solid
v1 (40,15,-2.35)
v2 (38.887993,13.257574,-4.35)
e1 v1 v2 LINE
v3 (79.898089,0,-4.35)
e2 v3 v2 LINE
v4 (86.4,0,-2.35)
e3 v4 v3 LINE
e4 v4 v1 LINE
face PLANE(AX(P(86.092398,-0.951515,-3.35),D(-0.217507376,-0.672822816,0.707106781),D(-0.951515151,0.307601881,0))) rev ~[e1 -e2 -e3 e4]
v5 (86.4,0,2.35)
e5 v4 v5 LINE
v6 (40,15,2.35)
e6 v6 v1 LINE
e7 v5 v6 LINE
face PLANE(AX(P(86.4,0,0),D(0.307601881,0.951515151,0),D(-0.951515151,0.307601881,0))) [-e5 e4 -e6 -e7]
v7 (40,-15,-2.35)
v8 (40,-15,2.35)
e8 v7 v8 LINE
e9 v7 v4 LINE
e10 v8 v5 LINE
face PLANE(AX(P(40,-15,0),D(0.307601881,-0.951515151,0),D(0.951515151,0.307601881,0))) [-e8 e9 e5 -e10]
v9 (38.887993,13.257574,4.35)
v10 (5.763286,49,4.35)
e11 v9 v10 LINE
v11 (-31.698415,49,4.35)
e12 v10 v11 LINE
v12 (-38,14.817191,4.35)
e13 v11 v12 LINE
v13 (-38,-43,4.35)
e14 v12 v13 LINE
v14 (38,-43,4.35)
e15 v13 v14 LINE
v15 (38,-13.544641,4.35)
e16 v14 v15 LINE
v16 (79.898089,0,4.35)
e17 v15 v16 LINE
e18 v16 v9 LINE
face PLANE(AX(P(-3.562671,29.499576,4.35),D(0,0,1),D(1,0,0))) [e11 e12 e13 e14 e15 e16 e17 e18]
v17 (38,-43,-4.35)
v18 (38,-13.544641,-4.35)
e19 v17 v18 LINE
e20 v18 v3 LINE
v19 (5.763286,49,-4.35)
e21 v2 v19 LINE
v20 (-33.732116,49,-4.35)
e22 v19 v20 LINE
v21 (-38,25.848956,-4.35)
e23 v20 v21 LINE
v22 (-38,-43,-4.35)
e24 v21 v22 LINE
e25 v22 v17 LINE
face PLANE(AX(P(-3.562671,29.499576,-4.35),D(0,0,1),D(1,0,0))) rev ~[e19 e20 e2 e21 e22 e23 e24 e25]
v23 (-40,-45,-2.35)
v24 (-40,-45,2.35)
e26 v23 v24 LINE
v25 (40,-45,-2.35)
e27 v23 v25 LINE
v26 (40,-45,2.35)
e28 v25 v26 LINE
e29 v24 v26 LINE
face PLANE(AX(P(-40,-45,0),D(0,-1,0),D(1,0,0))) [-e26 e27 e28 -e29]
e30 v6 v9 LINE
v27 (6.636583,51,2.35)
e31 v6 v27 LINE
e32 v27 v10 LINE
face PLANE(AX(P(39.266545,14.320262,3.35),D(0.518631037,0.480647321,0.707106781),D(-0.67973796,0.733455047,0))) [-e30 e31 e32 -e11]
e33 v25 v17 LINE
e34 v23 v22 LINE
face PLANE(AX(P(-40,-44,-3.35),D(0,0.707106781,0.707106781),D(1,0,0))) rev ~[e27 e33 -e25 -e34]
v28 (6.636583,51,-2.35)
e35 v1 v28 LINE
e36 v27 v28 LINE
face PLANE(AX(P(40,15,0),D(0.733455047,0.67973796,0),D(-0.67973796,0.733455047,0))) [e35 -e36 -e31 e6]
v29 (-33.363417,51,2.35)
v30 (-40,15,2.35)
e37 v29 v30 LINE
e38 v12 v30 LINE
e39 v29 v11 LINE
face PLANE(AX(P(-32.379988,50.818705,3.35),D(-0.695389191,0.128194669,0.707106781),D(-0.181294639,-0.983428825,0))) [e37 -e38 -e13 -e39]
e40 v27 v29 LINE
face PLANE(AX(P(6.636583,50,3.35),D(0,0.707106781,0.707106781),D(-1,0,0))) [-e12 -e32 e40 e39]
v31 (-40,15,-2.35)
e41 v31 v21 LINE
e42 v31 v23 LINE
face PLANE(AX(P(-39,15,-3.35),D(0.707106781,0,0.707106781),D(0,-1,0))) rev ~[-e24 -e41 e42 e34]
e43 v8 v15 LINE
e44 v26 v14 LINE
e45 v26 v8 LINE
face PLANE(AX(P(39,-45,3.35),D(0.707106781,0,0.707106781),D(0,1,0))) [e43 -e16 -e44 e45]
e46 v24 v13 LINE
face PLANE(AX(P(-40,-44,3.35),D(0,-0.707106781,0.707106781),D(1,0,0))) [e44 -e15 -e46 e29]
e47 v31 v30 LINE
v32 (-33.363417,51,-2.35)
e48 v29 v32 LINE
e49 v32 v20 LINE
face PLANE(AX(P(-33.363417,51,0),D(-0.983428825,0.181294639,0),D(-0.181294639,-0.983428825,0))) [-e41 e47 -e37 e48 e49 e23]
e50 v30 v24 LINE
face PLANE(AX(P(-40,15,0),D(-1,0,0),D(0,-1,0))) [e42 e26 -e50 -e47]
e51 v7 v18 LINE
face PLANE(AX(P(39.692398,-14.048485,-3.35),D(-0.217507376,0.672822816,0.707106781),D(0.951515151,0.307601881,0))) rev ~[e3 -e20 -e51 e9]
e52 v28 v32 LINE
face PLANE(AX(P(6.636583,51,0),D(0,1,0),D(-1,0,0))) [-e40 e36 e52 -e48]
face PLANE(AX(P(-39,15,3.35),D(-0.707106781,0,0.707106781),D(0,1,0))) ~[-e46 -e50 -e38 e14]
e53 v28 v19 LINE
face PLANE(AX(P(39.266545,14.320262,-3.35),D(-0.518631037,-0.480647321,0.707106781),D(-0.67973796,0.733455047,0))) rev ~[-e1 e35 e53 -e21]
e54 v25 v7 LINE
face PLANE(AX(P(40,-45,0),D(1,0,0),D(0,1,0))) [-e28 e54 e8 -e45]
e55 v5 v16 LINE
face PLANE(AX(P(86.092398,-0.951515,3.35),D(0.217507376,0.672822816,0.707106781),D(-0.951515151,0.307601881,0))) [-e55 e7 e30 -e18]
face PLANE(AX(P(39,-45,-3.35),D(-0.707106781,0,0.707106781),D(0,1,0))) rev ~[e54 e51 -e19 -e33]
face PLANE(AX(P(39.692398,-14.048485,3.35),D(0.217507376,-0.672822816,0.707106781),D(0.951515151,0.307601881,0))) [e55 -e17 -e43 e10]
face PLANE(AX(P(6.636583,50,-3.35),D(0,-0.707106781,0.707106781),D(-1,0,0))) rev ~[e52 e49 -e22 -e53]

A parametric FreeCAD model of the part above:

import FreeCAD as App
import Part
import Sketcher
from FreeCAD import Vector


def edges_at(feature, points):
    """Names of the edges that pass closest to the given points."""
    edges = feature.Shape.Edges
    near = lambda p: min(range(len(edges)), key=lambda i: edges[i].distToShape(Part.Vertex(*p))[0])
    return sorted({f"Edge{near(p) + 1}" for p in points})

doc = App.newDocument("Part")
body = doc.addObject("PartDesign::Body", "Body")

sketch1 = body.newObject("Sketcher::SketchObject", "Sketch")
sketch1.AttachmentSupport = (doc.getObject("XY_Plane"), [""])
sketch1.MapMode = "FlatFace"
sketch1.addGeometry(Part.LineSegment(Vector(-33, 51, 0), Vector(-40, 15, 0)), False)
sketch1.addGeometry(Part.LineSegment(Vector(-40, 15, 0), Vector(-40, -45, 0)), False)
sketch1.addGeometry(Part.LineSegment(Vector(-40, -45, 0), Vector(40, -45, 0)), False)
sketch1.addGeometry(Part.LineSegment(Vector(40, -45, 0), Vector(40, -15, 0)), False)
sketch1.addGeometry(Part.LineSegment(Vector(40, -15, 0), Vector(86, 0, 0)), False)
sketch1.addGeometry(Part.LineSegment(Vector(86, 0, 0), Vector(40, 15, 0)), False)
sketch1.addGeometry(Part.LineSegment(Vector(40, 15, 0), Vector(7, 51, 0)), False)
sketch1.addGeometry(Part.LineSegment(Vector(7, 51, 0), Vector(-33, 51, 0)), False)
sketch1.addConstraint(Sketcher.Constraint("Coincident", 0, 2, 1, 1))
sketch1.addConstraint(Sketcher.Constraint("Coincident", 1, 2, 2, 1))
sketch1.addConstraint(Sketcher.Constraint("Coincident", 2, 2, 3, 1))
sketch1.addConstraint(Sketcher.Constraint("Coincident", 3, 2, 4, 1))
sketch1.addConstraint(Sketcher.Constraint("Coincident", 4, 2, 5, 1))
sketch1.addConstraint(Sketcher.Constraint("Coincident", 5, 2, 6, 1))
sketch1.addConstraint(Sketcher.Constraint("Coincident", 6, 2, 7, 1))
sketch1.addConstraint(Sketcher.Constraint("Coincident", 7, 2, 0, 1))
sketch1.addConstraint(Sketcher.Constraint("Vertical", 1))
sketch1.addConstraint(Sketcher.Constraint("Horizontal", 2))
sketch1.addConstraint(Sketcher.Constraint("Vertical", 3))
sketch1.addConstraint(Sketcher.Constraint("Horizontal", 7))
sketch1.addConstraint(Sketcher.Constraint("Symmetric", 0, 2, 3, 2, -1, 1))
sketch1.addConstraint(Sketcher.Constraint("Symmetric", 0, 2, 5, 2, -2))
sketch1.addConstraint(Sketcher.Constraint("PointOnObject", 4, 2, -1))
sketch1.addConstraint(Sketcher.Constraint("DistanceX", 2, 1, 2, 2, 80.0))
sketch1.addConstraint(Sketcher.Constraint("DistanceX", 7, 2, 7, 1, 40.0))
sketch1.addConstraint(Sketcher.Constraint("DistanceY", 1, 2, 1, 1, 60.0))
sketch1.addConstraint(Sketcher.Constraint("DistanceY", 3, 1, 3, 2, 30.0))
sketch1.addConstraint(Sketcher.Constraint("DistanceY", -1, 1, 6, 2, 51.0))
sketch1.addConstraint(Sketcher.Constraint("DistanceX", -1, 1, 4, 2, 86.4))
sketch1.addConstraint(Sketcher.Constraint("Distance", 0, 36.606615))
pad1 = body.newObject("PartDesign::Pad", "Pad")
pad1.Profile = sketch1
pad1.Length = 8.7
pad1.Midplane = True
doc.recompute()

chamfer = body.newObject("PartDesign::Chamfer", "Chamfer")
chamfer.Base = (pad1, edges_at(pad1, [
    (23.318, 33, -4.35),
    (-13.363, 51, -4.35),
    (63.2, 7.5, -4.35),
    (63.2, -7.5, -4.35),
    (40, -30, -4.35),
    (0, -45, -4.35),
    (-40, -15, -4.35),
    (-13.363, 51, 4.35),
    (23.318, 33, 4.35),
    (63.2, 7.5, 4.35),
    (63.2, -7.5, 4.35),
    (40, -30, 4.35),
    (0, -45, 4.35),
    (-40, -15, 4.35),
    (-36.682, 33, 4.35),
]))
chamfer.Size = 2

doc.recompute()
